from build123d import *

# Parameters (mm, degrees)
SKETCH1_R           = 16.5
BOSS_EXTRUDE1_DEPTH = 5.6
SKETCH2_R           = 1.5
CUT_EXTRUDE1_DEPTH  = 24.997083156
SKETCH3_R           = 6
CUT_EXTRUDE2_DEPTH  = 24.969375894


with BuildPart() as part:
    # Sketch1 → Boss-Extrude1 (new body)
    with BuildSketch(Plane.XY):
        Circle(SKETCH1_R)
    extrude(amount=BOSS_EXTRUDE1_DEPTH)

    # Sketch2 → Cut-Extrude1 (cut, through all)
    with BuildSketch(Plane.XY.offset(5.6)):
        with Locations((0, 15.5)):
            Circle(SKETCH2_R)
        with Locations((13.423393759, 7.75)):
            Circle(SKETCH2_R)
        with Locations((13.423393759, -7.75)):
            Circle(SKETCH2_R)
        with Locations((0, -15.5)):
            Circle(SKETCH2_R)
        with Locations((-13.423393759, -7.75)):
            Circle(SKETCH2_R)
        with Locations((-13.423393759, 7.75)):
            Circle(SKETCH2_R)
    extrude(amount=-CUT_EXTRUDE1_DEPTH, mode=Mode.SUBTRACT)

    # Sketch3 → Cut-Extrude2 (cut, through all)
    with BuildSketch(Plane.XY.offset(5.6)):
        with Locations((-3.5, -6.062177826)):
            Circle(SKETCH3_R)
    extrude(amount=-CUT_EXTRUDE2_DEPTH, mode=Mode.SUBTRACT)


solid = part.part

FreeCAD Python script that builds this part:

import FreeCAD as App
import Part
import Sketcher
from FreeCAD import Vector
Q = App.Units.Quantity

doc = App.newDocument("Part")
body = doc.addObject("PartDesign::Body", "Body")

# Sketch on XY plane
sketch1 = body.newObject("Sketcher::SketchObject", "Sketch")
sketch1.AttachmentSupport = (doc.getObject("XY_Plane"), [""])
sketch1.MapMode = "FlatFace"
sketch1.addGeometry(Part.Circle(Vector(0, 0, 0), Vector(0, 0, 1), 16), False)
sketch1.addConstraint([
    Sketcher.Constraint("Coincident", 0, 3, -1, 1),
    Sketcher.Constraint("Diameter", 0, Q("33 mm")),
])
pad1 = body.newObject("PartDesign::Pad", "Pad")
pad1.Profile = sketch1
pad1.Length = 5.6

# Sketch on XY plane
sketch2 = body.newObject("Sketcher::SketchObject", "Sketch001")
sketch2.AttachmentSupport = (doc.getObject("XY_Plane"), [""])
sketch2.MapMode = "FlatFace"
sketch2.AttachmentOffset = App.Placement(Vector(0, 0, 5.6), App.Rotation())
sketch2.addGeometry([
    Part.Circle(Vector(0, 15.5, 0), Vector(0, 0, 1), 1.5),  # 0
    Part.Circle(Vector(13.4, 7.8, 0), Vector(0, 0, 1), 1.5),  # 1
    Part.Circle(Vector(13.4, -7.8, 0), Vector(0, 0, 1), 1.5),  # 2
    Part.Circle(Vector(0, -15.5, 0), Vector(0, 0, 1), 1.5),  # 3
    Part.Circle(Vector(-13.4, -7.8, 0), Vector(0, 0, 1), 1.5),  # 4
    Part.Circle(Vector(-13.4, 7.8, 0), Vector(0, 0, 1), 1.5),  # 5
], False)
sketch2.addConstraint([
    Sketcher.Constraint("Equal", 0, 1),
    Sketcher.Constraint("Equal", 1, 2),
    Sketcher.Constraint("Equal", 2, 3),
    Sketcher.Constraint("Equal", 3, 4),
    Sketcher.Constraint("Equal", 4, 5),
    Sketcher.Constraint("Symmetric", 0, 3, 3, 3, -1, 1),
    Sketcher.Constraint("Symmetric", 1, 3, 4, 3, -1, 1),
    Sketcher.Constraint("Symmetric", 2, 3, 5, 3, -1, 1),
    Sketcher.Constraint("Symmetric", 2, 3, 4, 3, -2),
    Sketcher.Constraint("PointOnObject", 0, 3, -2),
    Sketcher.Constraint("Diameter", 0, Q("3 mm")),
    Sketcher.Constraint("DistanceY", 3, 3, 0, 3, Q("31 mm")),
    Sketcher.Constraint("DistanceY", 2, 3, 1, 3, Q("15.5 mm")),
    Sketcher.Constraint("DistanceX", -1, 1, 1, 3, Q("13.423394 mm")),
])
pocket1 = body.newObject("PartDesign::Pocket", "Pocket")
pocket1.Profile = sketch2
pocket1.Type = "ThroughAll"

# Sketch on XY plane
sketch3 = body.newObject("Sketcher::SketchObject", "Sketch002")
sketch3.AttachmentSupport = (doc.getObject("XY_Plane"), [""])
sketch3.MapMode = "FlatFace"
sketch3.AttachmentOffset = App.Placement(Vector(0, 0, 5.6), App.Rotation())
sketch3.addGeometry(Part.Circle(Vector(-4, -6, 0), Vector(0, 0, 1), 6), False)
sketch3.addConstraint([
    Sketcher.Constraint("Diameter", 0, Q("12 mm")),
    Sketcher.Constraint("DistanceX", 0, 3, -1, 1, Q("3.5 mm")),
    Sketcher.Constraint("DistanceY", 0, 3, -1, 1, Q("6.062178 mm")),
])
pocket2 = body.newObject("PartDesign::Pocket", "Pocket001")
pocket2.Profile = sketch3
pocket2.Type = "ThroughAll"

doc.recompute()
